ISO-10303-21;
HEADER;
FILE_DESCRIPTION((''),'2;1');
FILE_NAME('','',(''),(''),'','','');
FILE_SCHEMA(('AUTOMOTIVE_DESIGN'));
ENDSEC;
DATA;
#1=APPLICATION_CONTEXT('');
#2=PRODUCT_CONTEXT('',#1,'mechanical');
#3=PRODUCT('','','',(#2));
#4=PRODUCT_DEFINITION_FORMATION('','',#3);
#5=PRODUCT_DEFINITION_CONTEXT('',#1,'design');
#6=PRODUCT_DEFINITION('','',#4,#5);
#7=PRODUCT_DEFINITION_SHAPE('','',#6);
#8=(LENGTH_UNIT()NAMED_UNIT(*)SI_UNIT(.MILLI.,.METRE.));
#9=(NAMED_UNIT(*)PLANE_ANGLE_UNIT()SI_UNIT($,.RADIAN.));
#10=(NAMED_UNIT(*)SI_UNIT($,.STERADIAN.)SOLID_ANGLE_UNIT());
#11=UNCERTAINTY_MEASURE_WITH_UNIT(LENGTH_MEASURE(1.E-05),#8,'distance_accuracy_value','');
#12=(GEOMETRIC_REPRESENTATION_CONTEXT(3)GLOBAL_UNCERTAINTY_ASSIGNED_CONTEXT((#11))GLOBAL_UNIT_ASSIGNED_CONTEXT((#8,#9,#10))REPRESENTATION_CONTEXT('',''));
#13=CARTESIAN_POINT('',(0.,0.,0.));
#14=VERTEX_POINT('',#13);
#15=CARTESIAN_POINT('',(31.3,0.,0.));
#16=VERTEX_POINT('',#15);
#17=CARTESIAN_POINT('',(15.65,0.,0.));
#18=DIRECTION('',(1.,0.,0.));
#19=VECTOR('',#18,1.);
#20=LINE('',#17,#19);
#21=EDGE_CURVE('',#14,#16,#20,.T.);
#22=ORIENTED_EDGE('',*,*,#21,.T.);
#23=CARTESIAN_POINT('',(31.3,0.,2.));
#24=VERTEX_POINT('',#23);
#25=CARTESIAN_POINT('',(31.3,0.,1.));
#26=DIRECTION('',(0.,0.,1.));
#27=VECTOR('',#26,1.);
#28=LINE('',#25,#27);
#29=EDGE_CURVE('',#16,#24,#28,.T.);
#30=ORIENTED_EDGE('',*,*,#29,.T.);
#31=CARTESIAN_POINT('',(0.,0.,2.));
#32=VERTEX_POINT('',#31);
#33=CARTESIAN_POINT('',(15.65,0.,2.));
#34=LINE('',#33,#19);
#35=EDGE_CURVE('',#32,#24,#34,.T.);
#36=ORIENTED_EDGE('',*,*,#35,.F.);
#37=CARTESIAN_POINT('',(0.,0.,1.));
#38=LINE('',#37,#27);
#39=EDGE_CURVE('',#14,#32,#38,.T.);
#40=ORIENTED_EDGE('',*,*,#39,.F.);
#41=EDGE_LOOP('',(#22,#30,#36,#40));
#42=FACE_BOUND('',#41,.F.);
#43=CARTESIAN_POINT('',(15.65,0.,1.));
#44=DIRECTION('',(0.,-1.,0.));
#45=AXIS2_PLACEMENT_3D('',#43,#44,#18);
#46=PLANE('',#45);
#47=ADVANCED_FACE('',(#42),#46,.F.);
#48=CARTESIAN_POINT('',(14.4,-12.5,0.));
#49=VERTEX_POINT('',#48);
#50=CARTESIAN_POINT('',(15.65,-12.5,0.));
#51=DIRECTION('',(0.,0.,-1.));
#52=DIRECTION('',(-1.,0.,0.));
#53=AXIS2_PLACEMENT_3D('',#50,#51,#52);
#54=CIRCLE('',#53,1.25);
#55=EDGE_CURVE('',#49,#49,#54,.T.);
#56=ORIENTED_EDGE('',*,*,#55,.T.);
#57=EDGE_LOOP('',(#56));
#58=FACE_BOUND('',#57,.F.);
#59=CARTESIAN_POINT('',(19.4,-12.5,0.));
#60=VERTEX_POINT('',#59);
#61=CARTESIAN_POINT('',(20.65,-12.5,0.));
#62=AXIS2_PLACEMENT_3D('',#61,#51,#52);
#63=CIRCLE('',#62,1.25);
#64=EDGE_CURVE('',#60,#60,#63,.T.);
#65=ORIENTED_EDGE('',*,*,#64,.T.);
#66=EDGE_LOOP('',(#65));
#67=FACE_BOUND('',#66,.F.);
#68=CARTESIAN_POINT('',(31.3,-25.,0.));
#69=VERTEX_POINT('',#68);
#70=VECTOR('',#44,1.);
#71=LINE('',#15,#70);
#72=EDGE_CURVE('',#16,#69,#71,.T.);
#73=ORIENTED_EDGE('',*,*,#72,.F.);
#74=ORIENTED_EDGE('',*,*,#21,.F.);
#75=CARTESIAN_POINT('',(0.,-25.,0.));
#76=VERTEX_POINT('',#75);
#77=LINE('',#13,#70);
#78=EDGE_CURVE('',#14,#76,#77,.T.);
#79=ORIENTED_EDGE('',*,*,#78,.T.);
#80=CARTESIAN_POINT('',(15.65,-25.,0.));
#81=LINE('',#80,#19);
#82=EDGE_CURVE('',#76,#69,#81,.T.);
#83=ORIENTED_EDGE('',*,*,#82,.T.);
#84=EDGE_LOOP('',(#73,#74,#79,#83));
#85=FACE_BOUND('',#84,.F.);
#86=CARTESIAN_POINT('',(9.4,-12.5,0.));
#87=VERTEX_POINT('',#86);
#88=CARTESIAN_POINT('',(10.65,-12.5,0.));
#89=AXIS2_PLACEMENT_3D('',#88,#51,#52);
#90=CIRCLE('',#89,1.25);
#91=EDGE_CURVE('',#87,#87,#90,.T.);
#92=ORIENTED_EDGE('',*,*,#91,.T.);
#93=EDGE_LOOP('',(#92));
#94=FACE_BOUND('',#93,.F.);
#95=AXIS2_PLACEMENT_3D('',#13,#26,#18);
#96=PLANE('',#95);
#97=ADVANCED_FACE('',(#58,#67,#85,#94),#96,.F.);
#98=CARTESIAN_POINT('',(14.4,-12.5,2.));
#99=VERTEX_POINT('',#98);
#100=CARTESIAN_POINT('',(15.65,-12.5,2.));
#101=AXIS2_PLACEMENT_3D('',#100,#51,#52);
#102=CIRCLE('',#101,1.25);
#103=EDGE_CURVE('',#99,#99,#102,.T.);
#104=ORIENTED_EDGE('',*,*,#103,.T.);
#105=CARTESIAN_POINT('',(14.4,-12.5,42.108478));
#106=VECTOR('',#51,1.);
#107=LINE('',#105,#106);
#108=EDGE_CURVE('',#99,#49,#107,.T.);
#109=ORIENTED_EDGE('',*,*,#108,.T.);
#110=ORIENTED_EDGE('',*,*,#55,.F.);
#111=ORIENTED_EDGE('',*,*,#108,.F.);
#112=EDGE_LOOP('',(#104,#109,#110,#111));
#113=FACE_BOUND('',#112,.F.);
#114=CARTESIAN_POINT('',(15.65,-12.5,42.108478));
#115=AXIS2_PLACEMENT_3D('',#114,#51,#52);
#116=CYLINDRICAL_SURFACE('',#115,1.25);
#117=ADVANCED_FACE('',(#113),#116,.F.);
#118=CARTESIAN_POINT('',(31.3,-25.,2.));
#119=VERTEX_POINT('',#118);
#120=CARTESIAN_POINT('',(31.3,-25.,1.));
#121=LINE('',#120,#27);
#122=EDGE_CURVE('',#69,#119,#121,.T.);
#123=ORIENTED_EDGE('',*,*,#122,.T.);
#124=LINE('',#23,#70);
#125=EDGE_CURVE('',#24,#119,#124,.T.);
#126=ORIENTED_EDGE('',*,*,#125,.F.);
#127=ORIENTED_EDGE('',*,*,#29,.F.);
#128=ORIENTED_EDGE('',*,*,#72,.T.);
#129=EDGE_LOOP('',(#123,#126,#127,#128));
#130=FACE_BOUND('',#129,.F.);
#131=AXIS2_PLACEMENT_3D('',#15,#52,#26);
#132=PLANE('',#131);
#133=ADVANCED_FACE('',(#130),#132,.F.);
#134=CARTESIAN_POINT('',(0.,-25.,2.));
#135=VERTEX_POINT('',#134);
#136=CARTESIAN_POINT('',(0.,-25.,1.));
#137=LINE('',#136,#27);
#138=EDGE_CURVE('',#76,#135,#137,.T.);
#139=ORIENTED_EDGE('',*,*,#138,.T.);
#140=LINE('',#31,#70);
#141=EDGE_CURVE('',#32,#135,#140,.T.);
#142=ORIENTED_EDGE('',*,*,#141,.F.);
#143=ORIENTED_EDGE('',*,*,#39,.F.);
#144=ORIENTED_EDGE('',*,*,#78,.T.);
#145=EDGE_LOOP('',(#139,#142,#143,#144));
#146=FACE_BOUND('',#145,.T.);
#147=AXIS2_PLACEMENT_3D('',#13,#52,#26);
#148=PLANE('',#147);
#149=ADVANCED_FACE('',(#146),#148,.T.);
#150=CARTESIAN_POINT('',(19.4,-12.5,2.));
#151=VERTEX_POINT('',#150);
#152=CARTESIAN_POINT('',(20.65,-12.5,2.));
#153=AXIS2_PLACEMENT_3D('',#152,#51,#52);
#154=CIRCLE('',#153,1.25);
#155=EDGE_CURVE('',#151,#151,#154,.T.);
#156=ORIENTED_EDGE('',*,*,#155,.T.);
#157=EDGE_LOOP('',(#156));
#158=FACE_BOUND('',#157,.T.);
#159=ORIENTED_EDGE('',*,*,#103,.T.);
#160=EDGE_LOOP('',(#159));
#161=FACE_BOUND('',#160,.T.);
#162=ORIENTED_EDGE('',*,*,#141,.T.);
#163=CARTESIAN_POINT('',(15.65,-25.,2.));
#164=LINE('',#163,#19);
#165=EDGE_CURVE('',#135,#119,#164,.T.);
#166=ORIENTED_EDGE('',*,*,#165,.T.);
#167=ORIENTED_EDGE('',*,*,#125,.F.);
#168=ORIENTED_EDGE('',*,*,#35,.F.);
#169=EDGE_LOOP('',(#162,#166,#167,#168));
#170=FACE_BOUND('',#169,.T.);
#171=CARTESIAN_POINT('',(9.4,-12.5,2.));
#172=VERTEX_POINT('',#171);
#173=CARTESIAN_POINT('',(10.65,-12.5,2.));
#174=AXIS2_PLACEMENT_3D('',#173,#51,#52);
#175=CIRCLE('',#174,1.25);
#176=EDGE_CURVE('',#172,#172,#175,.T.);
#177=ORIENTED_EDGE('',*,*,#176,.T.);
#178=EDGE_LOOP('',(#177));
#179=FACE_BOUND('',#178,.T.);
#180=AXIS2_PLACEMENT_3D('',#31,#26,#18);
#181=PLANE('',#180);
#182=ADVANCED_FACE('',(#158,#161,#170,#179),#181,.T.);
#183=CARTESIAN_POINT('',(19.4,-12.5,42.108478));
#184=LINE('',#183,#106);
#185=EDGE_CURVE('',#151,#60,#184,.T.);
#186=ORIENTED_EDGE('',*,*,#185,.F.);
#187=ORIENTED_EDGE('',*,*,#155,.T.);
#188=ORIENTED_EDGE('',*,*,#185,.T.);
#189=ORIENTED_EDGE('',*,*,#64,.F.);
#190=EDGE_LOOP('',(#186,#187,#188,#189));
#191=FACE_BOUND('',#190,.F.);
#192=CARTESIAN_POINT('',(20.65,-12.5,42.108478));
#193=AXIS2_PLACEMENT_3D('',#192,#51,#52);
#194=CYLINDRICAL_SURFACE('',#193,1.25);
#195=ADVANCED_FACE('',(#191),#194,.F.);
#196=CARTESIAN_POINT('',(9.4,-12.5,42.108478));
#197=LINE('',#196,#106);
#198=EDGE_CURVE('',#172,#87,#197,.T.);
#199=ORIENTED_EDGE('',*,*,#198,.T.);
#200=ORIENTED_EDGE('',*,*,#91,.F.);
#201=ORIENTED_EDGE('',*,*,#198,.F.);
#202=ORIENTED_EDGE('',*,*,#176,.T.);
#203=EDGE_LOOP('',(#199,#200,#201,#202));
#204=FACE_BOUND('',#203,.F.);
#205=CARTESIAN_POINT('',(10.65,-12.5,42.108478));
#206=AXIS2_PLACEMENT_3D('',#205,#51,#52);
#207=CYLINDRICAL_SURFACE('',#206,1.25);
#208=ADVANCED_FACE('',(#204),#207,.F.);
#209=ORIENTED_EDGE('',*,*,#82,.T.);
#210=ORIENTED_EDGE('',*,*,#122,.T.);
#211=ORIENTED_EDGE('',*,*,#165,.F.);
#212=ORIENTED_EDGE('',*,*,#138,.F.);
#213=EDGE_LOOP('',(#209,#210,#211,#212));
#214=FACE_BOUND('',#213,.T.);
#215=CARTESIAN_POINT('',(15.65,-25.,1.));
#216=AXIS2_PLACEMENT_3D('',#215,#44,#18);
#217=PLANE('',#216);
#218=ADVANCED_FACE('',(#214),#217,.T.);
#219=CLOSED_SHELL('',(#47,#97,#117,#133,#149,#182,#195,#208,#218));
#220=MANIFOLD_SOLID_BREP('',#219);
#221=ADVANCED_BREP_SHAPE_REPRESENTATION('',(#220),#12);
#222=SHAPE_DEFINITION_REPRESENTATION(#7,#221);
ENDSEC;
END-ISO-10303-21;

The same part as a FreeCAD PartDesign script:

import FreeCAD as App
import Part
import Sketcher

V = App.Vector


def add_polygon(sketch, points):
    """Adds a closed chain of lines whose ends are joined by coincident constraints."""
    first, n = sketch.GeometryCount, len(points)
    for a, b in zip(points, points[1:] + points[:1]):
        sketch.addGeometry(Part.LineSegment(App.Vector(*a, 0), App.Vector(*b, 0)), False)
    for i in range(n):
        sketch.addConstraint(Sketcher.Constraint("Coincident", first + i, 2, first + (i + 1) % n, 1))

doc = App.newDocument("Part")
params = doc.addObject("Spreadsheet::Sheet", "Params")
for row, (alias, value) in enumerate([
    ("sketch1_height", "2 mm"),
    ("sketch1_width", "31.3 mm"),
    ("pad1_length", "25 mm"),
    ("sketch2_diameter", "2.5 mm"),
    ("hole_diameter", "2.5 mm"),
], start=1):
    params.set(f"A{row}", alias)
    params.set(f"B{row}", "=" + value)
    params.setAlias(f"B{row}", alias)

body = doc.addObject("PartDesign::Body", "Body")

# Sketch on XZ plane
sketch1 = doc.addObject("Sketcher::SketchObject", "Sketch")
body.addObject(sketch1)
sketch1.AttachmentSupport = (doc.XZ_Plane, [""])
sketch1.MapMode = "FlatFace"
add_polygon(sketch1, [(0, 2), (0, 0), (31.3, 0), (31.3, 2)])  # lines 0-3
sketch1.addConstraint([
    Sketcher.Constraint("Vertical", 0),
    Sketcher.Constraint("Horizontal", 1),
    Sketcher.Constraint("Vertical", 2),
    Sketcher.Constraint("Horizontal", 3),
    Sketcher.Constraint("Coincident", 0, 2, -1, 1),
    Sketcher.Constraint("DistanceY", 0, 2, 0, 1, 2.0),
    Sketcher.Constraint("DistanceX", 1, 1, 1, 2, 31.3),
])
sketch1.setExpression("Constraints[9]", "Params.sketch1_height")
sketch1.setExpression("Constraints[10]", "Params.sketch1_width")
pad1 = doc.addObject("PartDesign::Pad", "Pad")
body.addObject(pad1)
pad1.Profile = sketch1
pad1.setExpression("Length", "Params.pad1_length")

# Sketch on XY plane
sketch2 = doc.addObject("Sketcher::SketchObject", "Sketch001")
body.addObject(sketch2)
sketch2.AttachmentSupport = (doc.XY_Plane, [""])
sketch2.MapMode = "FlatFace"
sketch2.AttachmentOffset = App.Placement(V(0, 0, 2), App.Rotation())
sketch2.addGeometry([
    Part.Circle(V(10.65, -12.5, 0), V(0, 0, 1), 1.25),
    Part.Circle(V(15.65, -12.5, 0), V(0, 0, 1), 1.25),
    Part.Circle(V(20.65, -12.5, 0), V(0, 0, 1), 1.25),
], False)
sketch2.addConstraint([
    Sketcher.Constraint("Equal", 0, 1),
    Sketcher.Constraint("Equal", 1, 2),
    Sketcher.Constraint("Horizontal", 0, 3, 1, 3),
    Sketcher.Constraint("Horizontal", 1, 3, 2, 3),
    Sketcher.Constraint("Diameter", 0, 2.5),
    Sketcher.Constraint("DistanceX", 0, 3, 1, 3, 5.0),
    Sketcher.Constraint("DistanceX", 1, 3, 2, 3, 5.0),
    Sketcher.Constraint("DistanceY", 0, 3, -1, 1, 12.5),
    Sketcher.Constraint("DistanceX", -1, 1, 0, 3, 10.65),
])
sketch2.setExpression("Constraints[4]", "Params.sketch2_diameter")
doc.recompute()
hole = doc.addObject("PartDesign::Hole", "Hole")
body.addObject(hole)
hole.Profile = sketch2
hole.ThreadType = "None"
hole.setExpression("Diameter", "Params.hole_diameter")
hole.DepthType = "ThroughAll"

doc.recompute()
